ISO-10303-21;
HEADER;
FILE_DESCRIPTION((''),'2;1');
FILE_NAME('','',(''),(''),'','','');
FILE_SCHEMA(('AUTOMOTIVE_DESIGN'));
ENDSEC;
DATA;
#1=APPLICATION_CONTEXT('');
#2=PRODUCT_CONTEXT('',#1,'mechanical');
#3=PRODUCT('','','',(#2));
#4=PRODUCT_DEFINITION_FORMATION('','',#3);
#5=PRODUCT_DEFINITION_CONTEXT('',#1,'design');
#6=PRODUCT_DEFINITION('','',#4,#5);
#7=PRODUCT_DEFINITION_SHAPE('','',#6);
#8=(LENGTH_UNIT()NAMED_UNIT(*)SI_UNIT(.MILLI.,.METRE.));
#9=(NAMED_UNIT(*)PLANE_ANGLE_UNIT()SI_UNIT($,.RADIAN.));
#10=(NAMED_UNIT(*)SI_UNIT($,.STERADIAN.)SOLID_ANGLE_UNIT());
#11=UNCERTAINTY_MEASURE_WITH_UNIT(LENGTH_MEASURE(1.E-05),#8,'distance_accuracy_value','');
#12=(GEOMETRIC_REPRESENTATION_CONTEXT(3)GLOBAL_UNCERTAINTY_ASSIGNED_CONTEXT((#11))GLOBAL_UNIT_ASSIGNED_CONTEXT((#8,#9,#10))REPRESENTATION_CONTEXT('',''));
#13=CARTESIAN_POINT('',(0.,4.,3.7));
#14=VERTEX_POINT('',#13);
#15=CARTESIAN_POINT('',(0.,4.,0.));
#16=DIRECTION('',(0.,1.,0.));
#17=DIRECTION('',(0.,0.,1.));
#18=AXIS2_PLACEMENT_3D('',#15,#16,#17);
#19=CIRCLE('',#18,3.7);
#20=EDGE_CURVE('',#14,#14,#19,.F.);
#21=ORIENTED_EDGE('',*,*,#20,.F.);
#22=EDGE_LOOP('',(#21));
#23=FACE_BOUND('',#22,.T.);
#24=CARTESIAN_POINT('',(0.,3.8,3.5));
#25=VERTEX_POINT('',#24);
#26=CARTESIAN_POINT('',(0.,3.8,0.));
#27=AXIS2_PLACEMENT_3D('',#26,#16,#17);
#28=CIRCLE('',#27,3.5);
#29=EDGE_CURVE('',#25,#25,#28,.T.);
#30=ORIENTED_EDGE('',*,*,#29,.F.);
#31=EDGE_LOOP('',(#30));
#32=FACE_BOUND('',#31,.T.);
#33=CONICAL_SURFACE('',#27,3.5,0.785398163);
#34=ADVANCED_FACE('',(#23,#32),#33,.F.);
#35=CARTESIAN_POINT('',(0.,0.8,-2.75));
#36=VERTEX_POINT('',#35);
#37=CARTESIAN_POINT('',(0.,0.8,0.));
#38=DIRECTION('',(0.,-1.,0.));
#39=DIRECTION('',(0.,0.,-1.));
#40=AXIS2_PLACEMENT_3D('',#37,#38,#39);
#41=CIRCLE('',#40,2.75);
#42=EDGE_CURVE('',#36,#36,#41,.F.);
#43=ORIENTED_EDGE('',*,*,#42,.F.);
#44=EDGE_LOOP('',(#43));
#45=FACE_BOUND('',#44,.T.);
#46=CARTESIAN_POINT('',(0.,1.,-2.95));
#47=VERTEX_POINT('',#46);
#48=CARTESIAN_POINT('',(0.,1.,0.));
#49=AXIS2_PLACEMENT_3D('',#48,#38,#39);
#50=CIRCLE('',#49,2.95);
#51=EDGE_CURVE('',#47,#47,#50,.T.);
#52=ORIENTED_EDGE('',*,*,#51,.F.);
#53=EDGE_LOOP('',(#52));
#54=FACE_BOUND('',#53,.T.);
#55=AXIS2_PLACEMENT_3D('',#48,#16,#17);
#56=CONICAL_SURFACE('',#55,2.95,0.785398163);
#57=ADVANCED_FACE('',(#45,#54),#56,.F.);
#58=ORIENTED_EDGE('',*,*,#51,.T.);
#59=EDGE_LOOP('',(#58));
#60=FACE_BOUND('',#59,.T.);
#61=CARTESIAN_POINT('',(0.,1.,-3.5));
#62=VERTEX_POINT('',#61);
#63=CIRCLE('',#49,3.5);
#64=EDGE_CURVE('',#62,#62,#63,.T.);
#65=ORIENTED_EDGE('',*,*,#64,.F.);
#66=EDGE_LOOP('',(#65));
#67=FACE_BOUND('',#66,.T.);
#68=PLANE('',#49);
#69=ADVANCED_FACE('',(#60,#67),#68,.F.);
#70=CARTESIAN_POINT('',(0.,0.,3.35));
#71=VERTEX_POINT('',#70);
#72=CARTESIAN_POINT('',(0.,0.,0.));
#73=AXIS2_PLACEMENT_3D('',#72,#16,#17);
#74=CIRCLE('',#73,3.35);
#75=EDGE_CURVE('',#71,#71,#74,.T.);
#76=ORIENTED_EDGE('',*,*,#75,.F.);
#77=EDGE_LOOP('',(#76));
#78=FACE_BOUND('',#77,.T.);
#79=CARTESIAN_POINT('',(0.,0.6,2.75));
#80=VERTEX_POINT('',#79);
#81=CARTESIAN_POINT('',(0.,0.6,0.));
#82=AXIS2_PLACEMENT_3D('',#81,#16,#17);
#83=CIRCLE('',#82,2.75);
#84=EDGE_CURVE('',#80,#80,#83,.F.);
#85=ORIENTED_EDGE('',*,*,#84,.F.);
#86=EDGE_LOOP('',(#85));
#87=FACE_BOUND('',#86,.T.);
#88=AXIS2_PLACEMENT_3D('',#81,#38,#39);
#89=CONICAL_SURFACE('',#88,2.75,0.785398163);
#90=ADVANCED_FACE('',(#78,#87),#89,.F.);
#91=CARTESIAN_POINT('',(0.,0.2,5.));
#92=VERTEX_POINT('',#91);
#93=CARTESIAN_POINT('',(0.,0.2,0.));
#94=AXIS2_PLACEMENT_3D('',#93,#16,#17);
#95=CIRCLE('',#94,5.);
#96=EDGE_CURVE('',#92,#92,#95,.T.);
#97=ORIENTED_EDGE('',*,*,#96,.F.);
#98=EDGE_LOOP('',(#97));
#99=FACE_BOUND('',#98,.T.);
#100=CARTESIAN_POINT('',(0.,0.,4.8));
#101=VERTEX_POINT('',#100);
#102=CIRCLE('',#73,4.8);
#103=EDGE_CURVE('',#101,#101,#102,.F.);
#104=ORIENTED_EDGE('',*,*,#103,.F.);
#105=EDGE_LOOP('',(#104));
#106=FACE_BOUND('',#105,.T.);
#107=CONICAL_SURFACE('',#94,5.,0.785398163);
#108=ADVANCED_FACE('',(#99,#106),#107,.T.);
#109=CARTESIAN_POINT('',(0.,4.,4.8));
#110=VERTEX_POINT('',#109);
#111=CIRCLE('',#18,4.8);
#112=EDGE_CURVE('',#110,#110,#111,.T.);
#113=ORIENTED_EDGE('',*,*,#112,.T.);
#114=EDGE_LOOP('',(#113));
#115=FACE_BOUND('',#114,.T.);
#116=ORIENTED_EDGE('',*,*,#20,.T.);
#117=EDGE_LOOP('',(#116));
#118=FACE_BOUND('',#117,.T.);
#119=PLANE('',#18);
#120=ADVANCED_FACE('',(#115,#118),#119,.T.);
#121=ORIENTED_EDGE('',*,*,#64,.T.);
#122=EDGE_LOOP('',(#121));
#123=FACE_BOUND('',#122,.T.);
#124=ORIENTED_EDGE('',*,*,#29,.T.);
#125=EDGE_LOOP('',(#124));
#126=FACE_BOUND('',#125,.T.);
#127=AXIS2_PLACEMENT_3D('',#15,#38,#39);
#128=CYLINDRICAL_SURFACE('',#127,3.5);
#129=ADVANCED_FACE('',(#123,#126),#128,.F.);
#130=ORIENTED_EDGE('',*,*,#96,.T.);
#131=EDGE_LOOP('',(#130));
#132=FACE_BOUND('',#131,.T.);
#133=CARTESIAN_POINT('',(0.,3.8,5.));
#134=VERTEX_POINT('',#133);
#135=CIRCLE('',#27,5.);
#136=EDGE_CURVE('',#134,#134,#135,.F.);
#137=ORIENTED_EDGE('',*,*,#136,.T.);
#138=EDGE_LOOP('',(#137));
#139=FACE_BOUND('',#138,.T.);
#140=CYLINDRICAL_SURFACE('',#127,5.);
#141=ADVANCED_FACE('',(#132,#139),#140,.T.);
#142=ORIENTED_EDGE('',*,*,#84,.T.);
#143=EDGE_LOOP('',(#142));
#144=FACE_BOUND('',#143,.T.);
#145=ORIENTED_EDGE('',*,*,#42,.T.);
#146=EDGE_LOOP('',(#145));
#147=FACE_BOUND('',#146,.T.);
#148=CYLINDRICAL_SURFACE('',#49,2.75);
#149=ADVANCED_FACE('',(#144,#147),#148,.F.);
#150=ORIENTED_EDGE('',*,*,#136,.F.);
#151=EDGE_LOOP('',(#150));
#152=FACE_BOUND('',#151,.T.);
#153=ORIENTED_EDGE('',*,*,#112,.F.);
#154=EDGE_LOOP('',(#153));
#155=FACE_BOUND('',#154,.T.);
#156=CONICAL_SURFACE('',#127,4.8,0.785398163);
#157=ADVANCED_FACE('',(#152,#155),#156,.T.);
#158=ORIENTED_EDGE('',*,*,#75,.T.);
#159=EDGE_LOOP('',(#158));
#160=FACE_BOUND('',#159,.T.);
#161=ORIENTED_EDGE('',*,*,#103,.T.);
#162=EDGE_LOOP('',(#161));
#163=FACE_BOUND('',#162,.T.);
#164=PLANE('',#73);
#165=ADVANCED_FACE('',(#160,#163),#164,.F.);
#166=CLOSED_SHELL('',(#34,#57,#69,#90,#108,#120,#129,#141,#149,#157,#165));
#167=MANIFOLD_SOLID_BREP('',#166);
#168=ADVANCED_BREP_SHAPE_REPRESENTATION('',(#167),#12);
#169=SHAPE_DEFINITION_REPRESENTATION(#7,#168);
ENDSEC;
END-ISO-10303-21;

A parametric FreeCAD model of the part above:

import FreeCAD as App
import Part
import Sketcher
Q = App.Units.Quantity


def edges_at(feature, points):
    """Names of the edges that pass closest to the given points."""
    edges = feature.Shape.Edges
    near = lambda p: min(range(len(edges)), key=lambda i: edges[i].distToShape(Part.Vertex(*p))[0])
    return sorted({f"Edge{near(p) + 1}" for p in points})

doc = App.newDocument("Part")
body = doc.addObject("PartDesign::Body", "Body")

# Sketch on XZ plane
sketch1 = body.newObject("Sketcher::SketchObject", "Sketch")
sketch1.AttachmentSupport = (doc.getObject("XZ_Plane"), [""])
sketch1.MapMode = "FlatFace"
sketch1.addGeometry(Part.Circle(App.Vector(0, 0, 0), App.Vector(0, 0, 1), 5), False)
sketch1.addGeometry(Part.Circle(App.Vector(0, 0, 0), App.Vector(0, 0, 1), 3.5), False)
sketch1.addConstraint(Sketcher.Constraint("Coincident", 0, 3, -1, 1))
sketch1.addConstraint(Sketcher.Constraint("Coincident", 1, 3, -1, 1))
sketch1.addConstraint(Sketcher.Constraint("Diameter", 0, Q("10 mm")))
sketch1.addConstraint(Sketcher.Constraint("Diameter", 1, Q("7 mm")))
pad1 = body.newObject("PartDesign::Pad", "Pad")
pad1.Profile = sketch1
pad1.Length = 4
pad1.Reversed = True

# Sketch on XZ plane
sketch2 = body.newObject("Sketcher::SketchObject", "Sketch001")
sketch2.AttachmentSupport = (doc.getObject("XZ_Plane"), [""])
sketch2.MapMode = "FlatFace"
sketch2.addGeometry(Part.Circle(App.Vector(0, 0, 0), App.Vector(0, 0, 1), 5), False)
sketch2.addGeometry(Part.Circle(App.Vector(0, 0, 0), App.Vector(0, 0, 1), 2.8), False)
sketch2.addConstraint(Sketcher.Constraint("Coincident", 0, 3, -1, 1))
sketch2.addConstraint(Sketcher.Constraint("Coincident", 1, 3, -1, 1))
sketch2.addConstraint(Sketcher.Constraint("Diameter", 0, Q("10 mm")))
sketch2.addConstraint(Sketcher.Constraint("Diameter", 1, Q("5.5 mm")))
pad2 = body.newObject("PartDesign::Pad", "Pad001")
pad2.Profile = sketch2
pad2.Length = 1
pad2.Reversed = True
doc.recompute()

chamfer = body.newObject("PartDesign::Chamfer", "Chamfer")
chamfer.Base = (pad2, edges_at(pad2, [
    (-2.75, 1, 0),
    (-5, 0, 0),
    (-5, 4, 0),
    (-3.5, 4, 0),
]))
chamfer.Size = 0.2
doc.recompute()

chamfer2 = body.newObject("PartDesign::Chamfer", "Chamfer001")
chamfer2.Base = (chamfer, edges_at(chamfer, [(-2.75, 0, 0)]))
chamfer2.Size = 0.6

doc.recompute()
